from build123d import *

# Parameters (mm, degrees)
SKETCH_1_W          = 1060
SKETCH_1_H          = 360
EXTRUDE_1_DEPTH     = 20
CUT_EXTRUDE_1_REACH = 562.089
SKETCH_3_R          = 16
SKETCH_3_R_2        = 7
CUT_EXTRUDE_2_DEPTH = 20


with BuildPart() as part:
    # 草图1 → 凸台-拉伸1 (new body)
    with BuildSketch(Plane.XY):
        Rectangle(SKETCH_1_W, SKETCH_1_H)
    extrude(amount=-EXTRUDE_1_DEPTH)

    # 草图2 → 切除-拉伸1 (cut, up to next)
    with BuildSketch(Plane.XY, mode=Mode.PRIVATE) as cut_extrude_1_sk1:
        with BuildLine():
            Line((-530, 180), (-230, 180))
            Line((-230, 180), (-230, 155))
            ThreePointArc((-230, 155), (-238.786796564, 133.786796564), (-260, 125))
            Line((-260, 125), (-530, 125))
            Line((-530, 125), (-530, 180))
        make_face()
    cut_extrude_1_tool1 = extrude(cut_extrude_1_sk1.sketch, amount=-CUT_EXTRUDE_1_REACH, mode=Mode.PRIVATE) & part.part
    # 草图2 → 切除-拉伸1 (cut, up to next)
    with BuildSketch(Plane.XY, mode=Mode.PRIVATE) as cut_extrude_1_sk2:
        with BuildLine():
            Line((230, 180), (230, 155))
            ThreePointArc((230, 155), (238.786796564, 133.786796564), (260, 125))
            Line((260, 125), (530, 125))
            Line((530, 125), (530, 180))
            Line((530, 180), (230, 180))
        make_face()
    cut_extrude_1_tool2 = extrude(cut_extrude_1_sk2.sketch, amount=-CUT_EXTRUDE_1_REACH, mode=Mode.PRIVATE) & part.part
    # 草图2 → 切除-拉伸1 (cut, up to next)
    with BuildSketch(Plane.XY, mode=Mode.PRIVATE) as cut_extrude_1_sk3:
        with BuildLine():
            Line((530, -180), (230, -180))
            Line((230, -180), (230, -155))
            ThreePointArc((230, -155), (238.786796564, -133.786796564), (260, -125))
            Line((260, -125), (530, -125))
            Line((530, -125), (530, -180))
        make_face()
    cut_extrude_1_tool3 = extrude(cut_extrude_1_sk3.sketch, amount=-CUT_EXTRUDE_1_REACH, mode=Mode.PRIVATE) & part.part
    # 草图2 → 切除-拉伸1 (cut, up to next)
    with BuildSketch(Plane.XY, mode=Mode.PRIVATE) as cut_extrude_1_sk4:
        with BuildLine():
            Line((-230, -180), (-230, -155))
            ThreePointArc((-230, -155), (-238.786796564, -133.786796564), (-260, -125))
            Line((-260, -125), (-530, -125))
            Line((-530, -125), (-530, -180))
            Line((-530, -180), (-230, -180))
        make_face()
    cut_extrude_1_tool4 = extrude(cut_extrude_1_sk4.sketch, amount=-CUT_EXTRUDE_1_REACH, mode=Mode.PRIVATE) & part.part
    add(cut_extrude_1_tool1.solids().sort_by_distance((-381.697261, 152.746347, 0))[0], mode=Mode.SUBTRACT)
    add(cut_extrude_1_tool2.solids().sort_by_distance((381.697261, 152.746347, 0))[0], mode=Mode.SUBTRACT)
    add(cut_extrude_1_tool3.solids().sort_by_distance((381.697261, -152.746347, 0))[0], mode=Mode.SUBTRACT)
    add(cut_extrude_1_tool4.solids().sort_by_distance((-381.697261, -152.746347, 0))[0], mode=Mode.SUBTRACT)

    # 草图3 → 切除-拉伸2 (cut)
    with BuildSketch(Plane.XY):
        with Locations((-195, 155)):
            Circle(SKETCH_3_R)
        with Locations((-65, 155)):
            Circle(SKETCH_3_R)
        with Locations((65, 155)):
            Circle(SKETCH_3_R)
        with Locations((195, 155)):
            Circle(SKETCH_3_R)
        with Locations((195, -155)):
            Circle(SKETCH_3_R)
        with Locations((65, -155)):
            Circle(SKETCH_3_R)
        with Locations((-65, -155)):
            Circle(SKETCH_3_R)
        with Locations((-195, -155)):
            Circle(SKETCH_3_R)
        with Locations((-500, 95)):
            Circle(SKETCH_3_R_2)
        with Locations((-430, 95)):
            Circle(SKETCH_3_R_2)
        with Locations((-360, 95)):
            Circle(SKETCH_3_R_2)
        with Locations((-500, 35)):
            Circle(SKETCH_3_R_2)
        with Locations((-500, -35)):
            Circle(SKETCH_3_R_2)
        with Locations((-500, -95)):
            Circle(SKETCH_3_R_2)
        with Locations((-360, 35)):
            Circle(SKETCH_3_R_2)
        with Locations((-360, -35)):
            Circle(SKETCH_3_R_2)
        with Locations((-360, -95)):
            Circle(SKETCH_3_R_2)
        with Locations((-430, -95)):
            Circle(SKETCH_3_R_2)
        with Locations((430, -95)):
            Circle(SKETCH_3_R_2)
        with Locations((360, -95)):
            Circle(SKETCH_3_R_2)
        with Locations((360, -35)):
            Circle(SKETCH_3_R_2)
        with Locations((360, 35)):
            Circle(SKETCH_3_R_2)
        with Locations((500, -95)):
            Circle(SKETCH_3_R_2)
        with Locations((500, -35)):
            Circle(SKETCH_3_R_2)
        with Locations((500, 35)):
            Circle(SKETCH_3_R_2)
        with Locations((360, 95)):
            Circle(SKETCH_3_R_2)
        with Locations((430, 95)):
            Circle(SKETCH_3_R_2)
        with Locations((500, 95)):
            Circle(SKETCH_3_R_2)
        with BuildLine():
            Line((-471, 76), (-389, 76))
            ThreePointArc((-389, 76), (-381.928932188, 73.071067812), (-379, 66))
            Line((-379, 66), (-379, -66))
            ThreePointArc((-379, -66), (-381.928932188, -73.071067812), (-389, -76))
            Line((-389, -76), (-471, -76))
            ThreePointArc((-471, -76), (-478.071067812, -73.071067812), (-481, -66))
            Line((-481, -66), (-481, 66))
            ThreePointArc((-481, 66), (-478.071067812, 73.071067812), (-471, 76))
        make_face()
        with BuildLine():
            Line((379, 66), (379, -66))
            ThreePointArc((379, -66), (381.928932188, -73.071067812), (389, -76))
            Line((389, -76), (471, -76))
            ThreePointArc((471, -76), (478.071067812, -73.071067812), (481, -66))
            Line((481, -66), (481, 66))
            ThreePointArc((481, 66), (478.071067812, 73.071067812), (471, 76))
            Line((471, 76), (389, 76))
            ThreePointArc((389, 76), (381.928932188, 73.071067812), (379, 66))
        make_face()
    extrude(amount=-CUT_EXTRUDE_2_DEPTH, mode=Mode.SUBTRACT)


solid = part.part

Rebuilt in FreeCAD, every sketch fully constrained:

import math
import FreeCAD as App
import Part
import Sketcher
from FreeCAD import Vector
Q = App.Units.Quantity


def add_polygon(sketch, points):
    """Adds a closed chain of lines whose ends are joined by coincident constraints."""
    first, n = sketch.GeometryCount, len(points)
    for a, b in zip(points, points[1:] + points[:1]):
        sketch.addGeometry(Part.LineSegment(App.Vector(*a, 0), App.Vector(*b, 0)), False)
    for i in range(n):
        sketch.addConstraint(Sketcher.Constraint("Coincident", first + i, 2, first + (i + 1) % n, 1))

doc = App.newDocument("Part")
body = doc.addObject("PartDesign::Body", "Body")

# Sketch on XY plane
sketch1 = body.newObject("Sketcher::SketchObject", "Sketch")
sketch1.AttachmentSupport = (doc.getObject("XY_Plane"), [""])
sketch1.MapMode = "FlatFace"
add_polygon(sketch1, [(-530, 180), (-530, -180), (530, -180), (530, 180)])  # lines 0-3
sketch1.addConstraint(Sketcher.Constraint("Vertical", 0))
sketch1.addConstraint(Sketcher.Constraint("Horizontal", 1))
sketch1.addConstraint(Sketcher.Constraint("Vertical", 2))
sketch1.addConstraint(Sketcher.Constraint("Horizontal", 3))
sketch1.addConstraint(Sketcher.Constraint("Symmetric", 0, 2, 2, 2, -1, 1))
sketch1.addConstraint(Sketcher.Constraint("DistanceX", 1, 1, 1, 2, Q("1060 mm")))
sketch1.addConstraint(Sketcher.Constraint("DistanceY", 0, 2, 0, 1, Q("360 mm")))
pad1 = body.newObject("PartDesign::Pad", "Pad")
pad1.Profile = sketch1
pad1.Length = 20
pad1.Reversed = True

# Sketch on XY plane
sketch2 = body.newObject("Sketcher::SketchObject", "Sketch001")
sketch2.AttachmentSupport = (doc.getObject("XY_Plane"), [""])
sketch2.MapMode = "FlatFace"
sketch2.addGeometry(Part.LineSegment(Vector(-230, 180, 0), Vector(-530, 180, 0)), False)
sketch2.addGeometry(Part.LineSegment(Vector(-530, 180, 0), Vector(-530, 125, 0)), False)
sketch2.addGeometry(Part.LineSegment(Vector(-530, 125, 0), Vector(-260, 125, 0)), False)
sketch2.addGeometry(Part.ArcOfCircle(Part.Circle(Vector(-260, 155, 0), Vector(0, 0, 1), 30), math.radians(-90), math.radians(0)), False)
sketch2.addGeometry(Part.LineSegment(Vector(-230, 155, 0), Vector(-230, 180, 0)), False)
sketch2.addConstraint(Sketcher.Constraint("Coincident", 0, 2, 1, 1))
sketch2.addConstraint(Sketcher.Constraint("Coincident", 1, 2, 2, 1))
sketch2.addConstraint(Sketcher.Constraint("Tangent", 2, 2, 3, 1))
sketch2.addConstraint(Sketcher.Constraint("Tangent", 3, 2, 4, 1))
sketch2.addConstraint(Sketcher.Constraint("Coincident", 4, 2, 0, 1))
sketch2.addConstraint(Sketcher.Constraint("Horizontal", 0))
sketch2.addConstraint(Sketcher.Constraint("Vertical", 1))
sketch2.addConstraint(Sketcher.Constraint("Horizontal", 2))
sketch2.addConstraint(Sketcher.Constraint("Vertical", 4))
sketch2.addConstraint(Sketcher.Constraint("Radius", 3, Q("30 mm")))
sketch2.addConstraint(Sketcher.Constraint("DistanceX", 0, 2, 0, 1, Q("300 mm")))
sketch2.addConstraint(Sketcher.Constraint("DistanceY", 1, 2, 1, 1, Q("55 mm")))
sketch2.addConstraint(Sketcher.Constraint("DistanceX", 3, 3, -1, 1, Q("260 mm")))
sketch2.addConstraint(Sketcher.Constraint("DistanceY", -1, 1, 3, 3, Q("155 mm")))
pocket1 = body.newObject("PartDesign::Pocket", "Pocket")
pocket1.Profile = sketch2
pocket1.Type = "UpToFirst"

# Sketch on XY plane
sketch3 = body.newObject("Sketcher::SketchObject", "Sketch002")
sketch3.AttachmentSupport = (doc.getObject("XY_Plane"), [""])
sketch3.MapMode = "FlatFace"
sketch3.addGeometry(Part.LineSegment(Vector(230, 180, 0), Vector(230, 155, 0)), False)
sketch3.addGeometry(Part.ArcOfCircle(Part.Circle(Vector(260, 155, 0), Vector(0, 0, 1), 30), math.radians(180), math.radians(270)), False)
sketch3.addGeometry(Part.LineSegment(Vector(260, 125, 0), Vector(530, 125, 0)), False)
sketch3.addGeometry(Part.LineSegment(Vector(530, 125, 0), Vector(530, 180, 0)), False)
sketch3.addGeometry(Part.LineSegment(Vector(530, 180, 0), Vector(230, 180, 0)), False)
sketch3.addConstraint(Sketcher.Constraint("Tangent", 0, 2, 1, 1))
sketch3.addConstraint(Sketcher.Constraint("Tangent", 1, 2, 2, 1))
sketch3.addConstraint(Sketcher.Constraint("Coincident", 2, 2, 3, 1))
sketch3.addConstraint(Sketcher.Constraint("Coincident", 3, 2, 4, 1))
sketch3.addConstraint(Sketcher.Constraint("Coincident", 4, 2, 0, 1))
sketch3.addConstraint(Sketcher.Constraint("Vertical", 0))
sketch3.addConstraint(Sketcher.Constraint("Horizontal", 2))
sketch3.addConstraint(Sketcher.Constraint("Vertical", 3))
sketch3.addConstraint(Sketcher.Constraint("Horizontal", 4))
sketch3.addConstraint(Sketcher.Constraint("Radius", 1, Q("30 mm")))
sketch3.addConstraint(Sketcher.Constraint("DistanceX", 2, 1, 2, 2, Q("270 mm")))
sketch3.addConstraint(Sketcher.Constraint("DistanceY", 0, 2, 0, 1, Q("25 mm")))
sketch3.addConstraint(Sketcher.Constraint("DistanceX", -1, 1, 1, 3, Q("260 mm")))
sketch3.addConstraint(Sketcher.Constraint("DistanceY", -1, 1, 1, 3, Q("155 mm")))
pocket2 = body.newObject("PartDesign::Pocket", "Pocket001")
pocket2.Profile = sketch3
pocket2.Type = "UpToFirst"

# Sketch on XY plane
sketch4 = body.newObject("Sketcher::SketchObject", "Sketch003")
sketch4.AttachmentSupport = (doc.getObject("XY_Plane"), [""])
sketch4.MapMode = "FlatFace"
sketch4.addGeometry(Part.LineSegment(Vector(230, -180, 0), Vector(530, -180, 0)), False)
sketch4.addGeometry(Part.LineSegment(Vector(530, -180, 0), Vector(530, -125, 0)), False)
sketch4.addGeometry(Part.LineSegment(Vector(530, -125, 0), Vector(260, -125, 0)), False)
sketch4.addGeometry(Part.ArcOfCircle(Part.Circle(Vector(260, -155, 0), Vector(0, 0, 1), 30), math.radians(90), math.radians(180)), False)
sketch4.addGeometry(Part.LineSegment(Vector(230, -155, 0), Vector(230, -180, 0)), False)
sketch4.addConstraint(Sketcher.Constraint("Coincident", 0, 2, 1, 1))
sketch4.addConstraint(Sketcher.Constraint("Coincident", 1, 2, 2, 1))
sketch4.addConstraint(Sketcher.Constraint("Tangent", 2, 2, 3, 1))
sketch4.addConstraint(Sketcher.Constraint("Tangent", 3, 2, 4, 1))
sketch4.addConstraint(Sketcher.Constraint("Coincident", 4, 2, 0, 1))
sketch4.addConstraint(Sketcher.Constraint("Horizontal", 0))
sketch4.addConstraint(Sketcher.Constraint("Vertical", 1))
sketch4.addConstraint(Sketcher.Constraint("Horizontal", 2))
sketch4.addConstraint(Sketcher.Constraint("Vertical", 4))
sketch4.addConstraint(Sketcher.Constraint("Radius", 3, Q("30 mm")))
sketch4.addConstraint(Sketcher.Constraint("DistanceX", 0, 1, 0, 2, Q("300 mm")))
sketch4.addConstraint(Sketcher.Constraint("DistanceY", 1, 1, 1, 2, Q("55 mm")))
sketch4.addConstraint(Sketcher.Constraint("DistanceX", -1, 1, 3, 3, Q("260 mm")))
sketch4.addConstraint(Sketcher.Constraint("DistanceY", 3, 3, -1, 1, Q("155 mm")))
pocket3 = body.newObject("PartDesign::Pocket", "Pocket002")
pocket3.Profile = sketch4
pocket3.Type = "UpToFirst"

# Sketch on XY plane
sketch5 = body.newObject("Sketcher::SketchObject", "Sketch004")
sketch5.AttachmentSupport = (doc.getObject("XY_Plane"), [""])
sketch5.MapMode = "FlatFace"
sketch5.addGeometry(Part.LineSegment(Vector(-230, -180, 0), Vector(-230, -155, 0)), False)
sketch5.addGeometry(Part.ArcOfCircle(Part.Circle(Vector(-260, -155, 0), Vector(0, 0, 1), 30), math.radians(0), math.radians(90)), False)
sketch5.addGeometry(Part.LineSegment(Vector(-260, -125, 0), Vector(-530, -125, 0)), False)
sketch5.addGeometry(Part.LineSegment(Vector(-530, -125, 0), Vector(-530, -180, 0)), False)
sketch5.addGeometry(Part.LineSegment(Vector(-530, -180, 0), Vector(-230, -180, 0)), False)
sketch5.addConstraint(Sketcher.Constraint("Tangent", 0, 2, 1, 1))
sketch5.addConstraint(Sketcher.Constraint("Tangent", 1, 2, 2, 1))
sketch5.addConstraint(Sketcher.Constraint("Coincident", 2, 2, 3, 1))
sketch5.addConstraint(Sketcher.Constraint("Coincident", 3, 2, 4, 1))
sketch5.addConstraint(Sketcher.Constraint("Coincident", 4, 2, 0, 1))
sketch5.addConstraint(Sketcher.Constraint("Vertical", 0))
sketch5.addConstraint(Sketcher.Constraint("Horizontal", 2))
sketch5.addConstraint(Sketcher.Constraint("Vertical", 3))
sketch5.addConstraint(Sketcher.Constraint("Horizontal", 4))
sketch5.addConstraint(Sketcher.Constraint("Radius", 1, Q("30 mm")))
sketch5.addConstraint(Sketcher.Constraint("DistanceX", 2, 2, 2, 1, Q("270 mm")))
sketch5.addConstraint(Sketcher.Constraint("DistanceY", 0, 1, 0, 2, Q("25 mm")))
sketch5.addConstraint(Sketcher.Constraint("DistanceX", 1, 3, -1, 1, Q("260 mm")))
sketch5.addConstraint(Sketcher.Constraint("DistanceY", 1, 3, -1, 1, Q("155 mm")))
pocket4 = body.newObject("PartDesign::Pocket", "Pocket003")
pocket4.Profile = sketch5
pocket4.Type = "UpToFirst"

# Sketch on XY plane
sketch6 = body.newObject("Sketcher::SketchObject", "Sketch005")
sketch6.AttachmentSupport = (doc.getObject("XY_Plane"), [""])
sketch6.MapMode = "FlatFace"
sketch6.addGeometry(Part.Circle(Vector(-195, 155, 0), Vector(0, 0, 1), 16), False)
sketch6.addGeometry(Part.Circle(Vector(-65, 155, 0), Vector(0, 0, 1), 16), False)
sketch6.addGeometry(Part.Circle(Vector(65, 155, 0), Vector(0, 0, 1), 16), False)
sketch6.addGeometry(Part.Circle(Vector(195, 155, 0), Vector(0, 0, 1), 16), False)
sketch6.addGeometry(Part.Circle(Vector(195, -155, 0), Vector(0, 0, 1), 16), False)
sketch6.addGeometry(Part.Circle(Vector(65, -155, 0), Vector(0, 0, 1), 16), False)
sketch6.addGeometry(Part.Circle(Vector(-65, -155, 0), Vector(0, 0, 1), 16), False)
sketch6.addGeometry(Part.Circle(Vector(-195, -155, 0), Vector(0, 0, 1), 16), False)
sketch6.addGeometry(Part.Circle(Vector(-500, 95, 0), Vector(0, 0, 1), 7), False)
sketch6.addGeometry(Part.Circle(Vector(-430, 95, 0), Vector(0, 0, 1), 7), False)
sketch6.addGeometry(Part.Circle(Vector(-360, 95, 0), Vector(0, 0, 1), 7), False)
sketch6.addGeometry(Part.Circle(Vector(-500, 35, 0), Vector(0, 0, 1), 7), False)
sketch6.addGeometry(Part.Circle(Vector(-500, -35, 0), Vector(0, 0, 1), 7), False)
sketch6.addGeometry(Part.Circle(Vector(-500, -95, 0), Vector(0, 0, 1), 7), False)
sketch6.addGeometry(Part.Circle(Vector(-360, 35, 0), Vector(0, 0, 1), 7), False)
sketch6.addGeometry(Part.Circle(Vector(-360, -35, 0), Vector(0, 0, 1), 7), False)
sketch6.addGeometry(Part.Circle(Vector(-360, -95, 0), Vector(0, 0, 1), 7), False)
sketch6.addGeometry(Part.Circle(Vector(-430, -95, 0), Vector(0, 0, 1), 7), False)
sketch6.addGeometry(Part.Circle(Vector(430, -95, 0), Vector(0, 0, 1), 7), False)
sketch6.addGeometry(Part.Circle(Vector(360, -95, 0), Vector(0, 0, 1), 7), False)
sketch6.addGeometry(Part.Circle(Vector(360, -35, 0), Vector(0, 0, 1), 7), False)
sketch6.addGeometry(Part.Circle(Vector(360, 35, 0), Vector(0, 0, 1), 7), False)
sketch6.addGeometry(Part.Circle(Vector(500, -95, 0), Vector(0, 0, 1), 7), False)
sketch6.addGeometry(Part.Circle(Vector(500, -35, 0), Vector(0, 0, 1), 7), False)
sketch6.addGeometry(Part.Circle(Vector(500, 35, 0), Vector(0, 0, 1), 7), False)
sketch6.addGeometry(Part.Circle(Vector(360, 95, 0), Vector(0, 0, 1), 7), False)
sketch6.addGeometry(Part.Circle(Vector(430, 95, 0), Vector(0, 0, 1), 7), False)
sketch6.addGeometry(Part.Circle(Vector(500, 95, 0), Vector(0, 0, 1), 7), False)
sketch6.addGeometry(Part.LineSegment(Vector(-389, 76, 0), Vector(-471, 76, 0)), False)
sketch6.addGeometry(Part.ArcOfCircle(Part.Circle(Vector(-471, 66, 0), Vector(0, 0, 1), 10), math.radians(90), math.radians(180)), False)
sketch6.addGeometry(Part.LineSegment(Vector(-481, 66, 0), Vector(-481, -66, 0)), False)
sketch6.addGeometry(Part.ArcOfCircle(Part.Circle(Vector(-471, -66, 0), Vector(0, 0, 1), 10), math.radians(180), math.radians(270)), False)
sketch6.addGeometry(Part.LineSegment(Vector(-471, -76, 0), Vector(-389, -76, 0)), False)
sketch6.addGeometry(Part.ArcOfCircle(Part.Circle(Vector(-389, -66, 0), Vector(0, 0, 1), 10), math.radians(-90), math.radians(0)), False)
sketch6.addGeometry(Part.LineSegment(Vector(-379, -66, 0), Vector(-379, 66, 0)), False)
sketch6.addGeometry(Part.ArcOfCircle(Part.Circle(Vector(-389, 66, 0), Vector(0, 0, 1), 10), math.radians(0), math.radians(90)), False)
sketch6.addGeometry(Part.LineSegment(Vector(379, 66, 0), Vector(379, -66, 0)), False)
sketch6.addGeometry(Part.ArcOfCircle(Part.Circle(Vector(389, -66, 0), Vector(0, 0, 1), 10), math.radians(180), math.radians(270)), False)
sketch6.addGeometry(Part.LineSegment(Vector(389, -76, 0), Vector(471, -76, 0)), False)
sketch6.addGeometry(Part.ArcOfCircle(Part.Circle(Vector(471, -66, 0), Vector(0, 0, 1), 10), math.radians(-90), math.radians(0)), False)
sketch6.addGeometry(Part.LineSegment(Vector(481, -66, 0), Vector(481, 66, 0)), False)
sketch6.addGeometry(Part.ArcOfCircle(Part.Circle(Vector(471, 66, 0), Vector(0, 0, 1), 10), math.radians(0), math.radians(90)), False)
sketch6.addGeometry(Part.LineSegment(Vector(471, 76, 0), Vector(389, 76, 0)), False)
sketch6.addGeometry(Part.ArcOfCircle(Part.Circle(Vector(389, 66, 0), Vector(0, 0, 1), 10), math.radians(90), math.radians(180)), False)
sketch6.addConstraint(Sketcher.Constraint("Tangent", 28, 2, 29, 1))
sketch6.addConstraint(Sketcher.Constraint("Tangent", 29, 2, 30, 1))
sketch6.addConstraint(Sketcher.Constraint("Tangent", 30, 2, 31, 1))
sketch6.addConstraint(Sketcher.Constraint("Tangent", 31, 2, 32, 1))
sketch6.addConstraint(Sketcher.Constraint("Tangent", 32, 2, 33, 1))
sketch6.addConstraint(Sketcher.Constraint("Tangent", 33, 2, 34, 1))
sketch6.addConstraint(Sketcher.Constraint("Tangent", 34, 2, 35, 1))
sketch6.addConstraint(Sketcher.Constraint("Tangent", 35, 2, 28, 1))
sketch6.addConstraint(Sketcher.Constraint("Tangent", 36, 2, 37, 1))
sketch6.addConstraint(Sketcher.Constraint("Tangent", 37, 2, 38, 1))
sketch6.addConstraint(Sketcher.Constraint("Tangent", 38, 2, 39, 1))
sketch6.addConstraint(Sketcher.Constraint("Tangent", 39, 2, 40, 1))
sketch6.addConstraint(Sketcher.Constraint("Tangent", 40, 2, 41, 1))
sketch6.addConstraint(Sketcher.Constraint("Tangent", 41, 2, 42, 1))
sketch6.addConstraint(Sketcher.Constraint("Tangent", 42, 2, 43, 1))
sketch6.addConstraint(Sketcher.Constraint("Tangent", 43, 2, 36, 1))
sketch6.addConstraint(Sketcher.Constraint("Horizontal", 28))
sketch6.addConstraint(Sketcher.Constraint("Vertical", 30))
sketch6.addConstraint(Sketcher.Constraint("Horizontal", 32))
sketch6.addConstraint(Sketcher.Constraint("Vertical", 34))
sketch6.addConstraint(Sketcher.Constraint("Vertical", 36))
sketch6.addConstraint(Sketcher.Constraint("Horizontal", 38))
sketch6.addConstraint(Sketcher.Constraint("Vertical", 40))
sketch6.addConstraint(Sketcher.Constraint("Horizontal", 42))
sketch6.addConstraint(Sketcher.Constraint("Equal", 0, 1))
sketch6.addConstraint(Sketcher.Constraint("Equal", 1, 2))
sketch6.addConstraint(Sketcher.Constraint("Equal", 2, 3))
sketch6.addConstraint(Sketcher.Constraint("Equal", 3, 4))
sketch6.addConstraint(Sketcher.Constraint("Equal", 4, 5))
sketch6.addConstraint(Sketcher.Constraint("Equal", 5, 6))
sketch6.addConstraint(Sketcher.Constraint("Equal", 6, 7))
sketch6.addConstraint(Sketcher.Constraint("Equal", 8, 9))
sketch6.addConstraint(Sketcher.Constraint("Equal", 9, 10))
sketch6.addConstraint(Sketcher.Constraint("Equal", 10, 11))
sketch6.addConstraint(Sketcher.Constraint("Equal", 11, 12))
sketch6.addConstraint(Sketcher.Constraint("Equal", 12, 13))
sketch6.addConstraint(Sketcher.Constraint("Equal", 13, 14))
sketch6.addConstraint(Sketcher.Constraint("Equal", 14, 15))
sketch6.addConstraint(Sketcher.Constraint("Equal", 15, 16))
sketch6.addConstraint(Sketcher.Constraint("Equal", 16, 17))
sketch6.addConstraint(Sketcher.Constraint("Equal", 17, 18))
sketch6.addConstraint(Sketcher.Constraint("Equal", 18, 19))
sketch6.addConstraint(Sketcher.Constraint("Equal", 19, 20))
sketch6.addConstraint(Sketcher.Constraint("Equal", 20, 21))
sketch6.addConstraint(Sketcher.Constraint("Equal", 21, 22))
sketch6.addConstraint(Sketcher.Constraint("Equal", 22, 23))
sketch6.addConstraint(Sketcher.Constraint("Equal", 23, 24))
sketch6.addConstraint(Sketcher.Constraint("Equal", 24, 25))
sketch6.addConstraint(Sketcher.Constraint("Equal", 25, 26))
sketch6.addConstraint(Sketcher.Constraint("Equal", 26, 27))
sketch6.addConstraint(Sketcher.Constraint("Equal", 29, 31))
sketch6.addConstraint(Sketcher.Constraint("Equal", 31, 33))
sketch6.addConstraint(Sketcher.Constraint("Equal", 33, 35))
sketch6.addConstraint(Sketcher.Constraint("Equal", 35, 37))
sketch6.addConstraint(Sketcher.Constraint("Equal", 37, 39))
sketch6.addConstraint(Sketcher.Constraint("Equal", 39, 41))
sketch6.addConstraint(Sketcher.Constraint("Equal", 41, 43))
sketch6.addConstraint(Sketcher.Constraint("Symmetric", 0, 3, 4, 3, -1, 1))
sketch6.addConstraint(Sketcher.Constraint("Symmetric", 1, 3, 5, 3, -1, 1))
sketch6.addConstraint(Sketcher.Constraint("Symmetric", 2, 3, 6, 3, -1, 1))
sketch6.addConstraint(Sketcher.Constraint("Symmetric", 3, 3, 7, 3, -1, 1))
sketch6.addConstraint(Sketcher.Constraint("Symmetric", 9, 3, 18, 3, -1, 1))
sketch6.addConstraint(Sketcher.Constraint("Symmetric", 10, 3, 19, 3, -1, 1))
sketch6.addConstraint(Sketcher.Constraint("Symmetric", 14, 3, 20, 3, -1, 1))
sketch6.addConstraint(Sketcher.Constraint("Symmetric", 15, 3, 21, 3, -1, 1))
sketch6.addConstraint(Sketcher.Constraint("Symmetric", 8, 3, 22, 3, -1, 1))
sketch6.addConstraint(Sketcher.Constraint("Symmetric", 11, 3, 23, 3, -1, 1))
sketch6.addConstraint(Sketcher.Constraint("Symmetric", 12, 3, 24, 3, -1, 1))
sketch6.addConstraint(Sketcher.Constraint("Symmetric", 16, 3, 25, 3, -1, 1))
sketch6.addConstraint(Sketcher.Constraint("Symmetric", 17, 3, 26, 3, -1, 1))
sketch6.addConstraint(Sketcher.Constraint("Symmetric", 13, 3, 27, 3, -1, 1))
sketch6.addConstraint(Sketcher.Constraint("Symmetric", 35, 3, 37, 3, -1, 1))
sketch6.addConstraint(Sketcher.Constraint("Symmetric", 31, 3, 41, 3, -1, 1))
sketch6.addConstraint(Sketcher.Constraint("Symmetric", 1, 3, 2, 3, -2))
sketch6.addConstraint(Sketcher.Constraint("Symmetric", 0, 3, 3, 3, -2))
sketch6.addConstraint(Sketcher.Constraint("Symmetric", 17, 3, 18, 3, -2))
sketch6.addConstraint(Sketcher.Constraint("Symmetric", 16, 3, 19, 3, -2))
sketch6.addConstraint(Sketcher.Constraint("Symmetric", 15, 3, 20, 3, -2))
sketch6.addConstraint(Sketcher.Constraint("Symmetric", 13, 3, 22, 3, -2))
sketch6.addConstraint(Sketcher.Constraint("Symmetric", 12, 3, 23, 3, -2))
sketch6.addConstraint(Sketcher.Constraint("Horizontal", 0, 3, 1, 3))
sketch6.addConstraint(Sketcher.Constraint("Horizontal", 8, 3, 9, 3))
sketch6.addConstraint(Sketcher.Constraint("Horizontal", 9, 3, 10, 3))
sketch6.addConstraint(Sketcher.Constraint("Horizontal", 11, 3, 14, 3))
sketch6.addConstraint(Sketcher.Constraint("Horizontal", 33, 3, 37, 3))
sketch6.addConstraint(Sketcher.Constraint("Vertical", 8, 3, 11, 3))
sketch6.addConstraint(Sketcher.Constraint("Vertical", 10, 3, 14, 3))
sketch6.addConstraint(Sketcher.Constraint("Diameter", 0, Q("32 mm")))
sketch6.addConstraint(Sketcher.Constraint("Diameter", 8, Q("14 mm")))
sketch6.addConstraint(Sketcher.Constraint("Radius", 29, Q("10 mm")))
sketch6.addConstraint(Sketcher.Constraint("DistanceX", 28, 2, 28, 1, Q("82 mm")))
sketch6.addConstraint(Sketcher.Constraint("DistanceY", 30, 2, 30, 1, Q("132 mm")))
sketch6.addConstraint(Sketcher.Constraint("DistanceX", 0, 3, -1, 1, Q("195 mm")))
sketch6.addConstraint(Sketcher.Constraint("DistanceY", -1, 1, 0, 3, Q("155 mm")))
sketch6.addConstraint(Sketcher.Constraint("DistanceX", 1, 3, -1, 1, Q("65 mm")))
sketch6.addConstraint(Sketcher.Constraint("DistanceX", 8, 3, -1, 1, Q("500 mm")))
sketch6.addConstraint(Sketcher.Constraint("DistanceY", -1, 1, 8, 3, Q("95 mm")))
sketch6.addConstraint(Sketcher.Constraint("DistanceX", 9, 3, -1, 1, Q("430 mm")))
sketch6.addConstraint(Sketcher.Constraint("DistanceX", 10, 3, -1, 1, Q("360 mm")))
sketch6.addConstraint(Sketcher.Constraint("DistanceY", -1, 1, 11, 3, Q("35 mm")))
sketch6.addConstraint(Sketcher.Constraint("DistanceX", 29, 3, -1, 1, Q("471 mm")))
pocket5 = body.newObject("PartDesign::Pocket", "Pocket004")
pocket5.Profile = sketch6
pocket5.Length = 20

doc.recompute()
